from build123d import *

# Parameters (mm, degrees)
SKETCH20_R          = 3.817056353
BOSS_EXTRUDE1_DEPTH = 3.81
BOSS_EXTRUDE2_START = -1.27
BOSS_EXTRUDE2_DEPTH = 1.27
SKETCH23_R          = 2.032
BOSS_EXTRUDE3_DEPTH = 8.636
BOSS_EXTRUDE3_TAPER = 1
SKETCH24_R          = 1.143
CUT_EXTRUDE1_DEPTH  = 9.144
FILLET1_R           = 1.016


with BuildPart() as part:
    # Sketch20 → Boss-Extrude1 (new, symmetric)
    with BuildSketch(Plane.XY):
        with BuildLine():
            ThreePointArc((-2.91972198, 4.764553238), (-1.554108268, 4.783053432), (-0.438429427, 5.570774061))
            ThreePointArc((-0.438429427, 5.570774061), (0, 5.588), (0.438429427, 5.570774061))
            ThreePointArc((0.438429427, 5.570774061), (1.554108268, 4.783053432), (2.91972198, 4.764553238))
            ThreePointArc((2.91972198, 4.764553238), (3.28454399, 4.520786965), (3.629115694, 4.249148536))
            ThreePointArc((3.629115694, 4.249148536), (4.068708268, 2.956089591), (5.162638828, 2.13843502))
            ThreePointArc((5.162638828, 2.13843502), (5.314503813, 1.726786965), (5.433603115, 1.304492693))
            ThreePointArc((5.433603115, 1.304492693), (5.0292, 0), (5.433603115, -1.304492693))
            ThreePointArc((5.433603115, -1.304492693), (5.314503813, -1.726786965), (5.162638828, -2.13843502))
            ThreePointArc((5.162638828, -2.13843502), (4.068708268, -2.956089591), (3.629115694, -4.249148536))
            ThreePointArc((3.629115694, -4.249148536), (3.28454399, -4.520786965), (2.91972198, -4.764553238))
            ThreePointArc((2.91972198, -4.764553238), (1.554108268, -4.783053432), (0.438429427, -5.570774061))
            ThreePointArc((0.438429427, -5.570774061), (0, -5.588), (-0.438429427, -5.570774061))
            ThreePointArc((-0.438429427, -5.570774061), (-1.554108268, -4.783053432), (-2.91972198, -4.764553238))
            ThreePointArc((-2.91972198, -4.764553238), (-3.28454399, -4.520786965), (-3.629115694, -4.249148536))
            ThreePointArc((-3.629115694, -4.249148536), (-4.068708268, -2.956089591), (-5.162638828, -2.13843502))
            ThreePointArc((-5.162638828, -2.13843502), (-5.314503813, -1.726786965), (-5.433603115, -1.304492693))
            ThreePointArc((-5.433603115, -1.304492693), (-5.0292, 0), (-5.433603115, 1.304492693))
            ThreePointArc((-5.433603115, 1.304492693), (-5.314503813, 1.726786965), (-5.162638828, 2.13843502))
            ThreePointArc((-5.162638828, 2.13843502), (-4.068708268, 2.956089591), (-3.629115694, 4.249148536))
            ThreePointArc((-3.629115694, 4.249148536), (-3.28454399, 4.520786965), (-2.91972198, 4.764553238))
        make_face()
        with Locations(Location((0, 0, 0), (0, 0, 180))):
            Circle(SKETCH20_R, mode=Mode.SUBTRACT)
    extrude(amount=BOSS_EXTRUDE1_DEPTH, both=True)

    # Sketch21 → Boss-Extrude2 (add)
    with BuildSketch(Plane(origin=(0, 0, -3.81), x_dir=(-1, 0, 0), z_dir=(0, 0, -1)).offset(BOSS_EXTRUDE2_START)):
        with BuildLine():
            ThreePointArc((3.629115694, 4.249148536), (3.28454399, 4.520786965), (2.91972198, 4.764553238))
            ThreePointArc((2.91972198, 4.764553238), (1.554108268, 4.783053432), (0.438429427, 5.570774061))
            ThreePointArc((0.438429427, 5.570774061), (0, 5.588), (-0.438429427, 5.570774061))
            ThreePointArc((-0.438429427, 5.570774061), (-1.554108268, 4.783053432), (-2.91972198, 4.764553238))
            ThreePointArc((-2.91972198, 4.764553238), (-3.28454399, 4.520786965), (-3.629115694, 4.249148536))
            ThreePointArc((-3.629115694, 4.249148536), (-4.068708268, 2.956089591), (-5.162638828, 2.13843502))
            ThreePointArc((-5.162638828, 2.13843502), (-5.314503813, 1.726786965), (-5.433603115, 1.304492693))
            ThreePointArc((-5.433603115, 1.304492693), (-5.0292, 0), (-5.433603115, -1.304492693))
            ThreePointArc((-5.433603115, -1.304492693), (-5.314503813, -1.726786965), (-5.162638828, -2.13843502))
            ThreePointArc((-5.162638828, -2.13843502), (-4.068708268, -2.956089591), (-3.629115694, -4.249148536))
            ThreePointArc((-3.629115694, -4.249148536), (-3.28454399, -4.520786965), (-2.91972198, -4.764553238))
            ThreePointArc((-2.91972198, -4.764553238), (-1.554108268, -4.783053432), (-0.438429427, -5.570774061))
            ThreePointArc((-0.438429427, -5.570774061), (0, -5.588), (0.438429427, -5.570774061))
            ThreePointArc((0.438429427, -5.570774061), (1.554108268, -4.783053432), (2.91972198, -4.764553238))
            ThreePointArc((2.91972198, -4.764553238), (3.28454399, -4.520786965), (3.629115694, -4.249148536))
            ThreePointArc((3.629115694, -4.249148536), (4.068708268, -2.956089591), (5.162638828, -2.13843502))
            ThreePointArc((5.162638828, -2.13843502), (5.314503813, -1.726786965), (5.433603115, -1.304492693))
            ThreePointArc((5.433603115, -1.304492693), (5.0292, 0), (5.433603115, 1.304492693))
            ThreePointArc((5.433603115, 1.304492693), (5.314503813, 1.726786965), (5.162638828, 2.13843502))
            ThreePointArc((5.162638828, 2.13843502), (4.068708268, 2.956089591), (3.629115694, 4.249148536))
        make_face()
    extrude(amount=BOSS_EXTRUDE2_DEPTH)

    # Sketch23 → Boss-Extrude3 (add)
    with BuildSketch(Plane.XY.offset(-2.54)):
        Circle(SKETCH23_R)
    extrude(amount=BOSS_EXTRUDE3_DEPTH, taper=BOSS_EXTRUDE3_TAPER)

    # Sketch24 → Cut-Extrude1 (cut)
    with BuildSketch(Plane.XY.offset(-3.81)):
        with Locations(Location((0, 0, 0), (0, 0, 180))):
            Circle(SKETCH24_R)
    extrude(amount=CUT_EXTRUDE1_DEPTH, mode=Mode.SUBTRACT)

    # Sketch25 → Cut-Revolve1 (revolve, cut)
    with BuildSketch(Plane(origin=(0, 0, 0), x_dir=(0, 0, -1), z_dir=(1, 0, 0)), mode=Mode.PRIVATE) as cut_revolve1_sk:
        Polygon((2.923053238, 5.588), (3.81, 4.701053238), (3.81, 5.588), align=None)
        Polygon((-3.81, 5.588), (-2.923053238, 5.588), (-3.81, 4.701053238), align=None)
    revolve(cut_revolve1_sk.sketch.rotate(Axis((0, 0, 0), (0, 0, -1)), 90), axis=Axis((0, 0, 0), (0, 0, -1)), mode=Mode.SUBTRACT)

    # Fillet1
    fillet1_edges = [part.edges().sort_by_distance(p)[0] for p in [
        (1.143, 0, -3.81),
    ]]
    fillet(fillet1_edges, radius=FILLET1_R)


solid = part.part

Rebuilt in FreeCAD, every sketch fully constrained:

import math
import FreeCAD as App
import Part
import Sketcher
from FreeCAD import Vector
Q = App.Units.Quantity


def edges_at(feature, points):
    """Names of the edges that pass closest to the given points."""
    edges = feature.Shape.Edges
    near = lambda p: min(range(len(edges)), key=lambda i: edges[i].distToShape(Part.Vertex(*p))[0])
    return sorted({f"Edge{near(p) + 1}" for p in points})

doc = App.newDocument("Part")
body = doc.addObject("PartDesign::Body", "Body")

sketch1 = body.newObject("Sketcher::SketchObject", "Sketch")
sketch1.AttachmentSupport = (doc.getObject("XY_Plane"), [""])
sketch1.MapMode = "FlatFace"
sketch1.addGeometry([
    Part.ArcOfCircle(Part.Circle(Vector(-2.266753, 6.97635, 0), Vector(0, 0, 1), 2.306168), math.radians(-106.447704), math.radians(-37.552296)),
    Part.ArcOfCircle(Part.Circle(Vector(0, 0, 0), Vector(0, 0, 1), 5.588), math.radians(121.5), math.radians(130.5)),
    Part.ArcOfCircle(Part.Circle(Vector(-5.934437, 4.311621, 0), Vector(0, 0, 1), 2.306168), math.radians(-70.447704), math.radians(-1.552296)),
    Part.ArcOfCircle(Part.Circle(Vector(0, 0, 0), Vector(0, 0, 1), 5.588), math.radians(157.5), math.radians(166.5)),
    Part.ArcOfCircle(Part.Circle(Vector(-7.335368, 0, 0), Vector(0, 0, 1), 2.306168), math.radians(-34.447704), math.radians(34.447704)),
    Part.ArcOfCircle(Part.Circle(Vector(0, 0, 0), Vector(0, 0, 1), 5.588), math.radians(-166.5), math.radians(-157.5)),
    Part.ArcOfCircle(Part.Circle(Vector(-5.934437, -4.311621, 0), Vector(0, 0, 1), 2.306168), math.radians(1.552296), math.radians(70.447704)),
    Part.ArcOfCircle(Part.Circle(Vector(0, 0, 0), Vector(0, 0, 1), 5.588), math.radians(-130.5), math.radians(-121.5)),
    Part.ArcOfCircle(Part.Circle(Vector(-2.266753, -6.97635, 0), Vector(0, 0, 1), 2.306168), math.radians(37.552296), math.radians(106.447704)),
    Part.ArcOfCircle(Part.Circle(Vector(0, 0, 0), Vector(0, 0, 1), 5.588), math.radians(-94.5), math.radians(-85.5)),
    Part.ArcOfCircle(Part.Circle(Vector(2.266753, -6.97635, 0), Vector(0, 0, 1), 2.306168), math.radians(73.552296), math.radians(142.447704)),
    Part.ArcOfCircle(Part.Circle(Vector(0, 0, 0), Vector(0, 0, 1), 5.588), math.radians(-58.5), math.radians(-49.5)),
    Part.ArcOfCircle(Part.Circle(Vector(5.934437, -4.311621, 0), Vector(0, 0, 1), 2.306168), math.radians(109.552296), math.radians(178.447704)),
    Part.ArcOfCircle(Part.Circle(Vector(0, 0, 0), Vector(0, 0, 1), 5.588), math.radians(-22.5), math.radians(-13.5)),
    Part.ArcOfCircle(Part.Circle(Vector(7.335368, 0, 0), Vector(0, 0, 1), 2.306168), math.radians(145.552296), math.radians(214.447704)),
    Part.ArcOfCircle(Part.Circle(Vector(0, 0, 0), Vector(0, 0, 1), 5.588), math.radians(13.5), math.radians(22.5)),
    Part.ArcOfCircle(Part.Circle(Vector(5.934437, 4.311621, 0), Vector(0, 0, 1), 2.306168), math.radians(-178.447704), math.radians(-109.552296)),
    Part.ArcOfCircle(Part.Circle(Vector(0, 0, 0), Vector(0, 0, 1), 5.588), math.radians(49.5), math.radians(58.5)),
    Part.ArcOfCircle(Part.Circle(Vector(2.266753, 6.97635, 0), Vector(0, 0, 1), 2.306168), math.radians(-142.447704), math.radians(-73.552296)),
    Part.ArcOfCircle(Part.Circle(Vector(0, 0, 0), Vector(0, 0, 1), 5.588), math.radians(85.5), math.radians(94.5)),
    Part.Circle(Vector(0, 0, 0), Vector(0, 0, 1), 3.817056),
], False)
sketch1.addConstraint([
    Sketcher.Constraint("Coincident", 0, 1, 1, 1),
    Sketcher.Constraint("Coincident", 1, 2, 2, 2),
    Sketcher.Constraint("Coincident", 2, 1, 3, 1),
    Sketcher.Constraint("Coincident", 3, 2, 4, 2),
    Sketcher.Constraint("Coincident", 4, 1, 5, 1),
    Sketcher.Constraint("Coincident", 5, 2, 6, 2),
    Sketcher.Constraint("Coincident", 6, 1, 7, 1),
    Sketcher.Constraint("Coincident", 7, 2, 8, 2),
    Sketcher.Constraint("Coincident", 8, 1, 9, 1),
    Sketcher.Constraint("Coincident", 9, 2, 10, 2),
    Sketcher.Constraint("Coincident", 10, 1, 11, 1),
    Sketcher.Constraint("Coincident", 11, 2, 12, 2),
    Sketcher.Constraint("Coincident", 12, 1, 13, 1),
    Sketcher.Constraint("Coincident", 13, 2, 14, 2),
    Sketcher.Constraint("Coincident", 14, 1, 15, 1),
    Sketcher.Constraint("Coincident", 15, 2, 16, 2),
    Sketcher.Constraint("Coincident", 16, 1, 17, 1),
    Sketcher.Constraint("Coincident", 17, 2, 18, 2),
    Sketcher.Constraint("Coincident", 18, 1, 19, 1),
    Sketcher.Constraint("Coincident", 19, 2, 0, 2),
    Sketcher.Constraint("Coincident", 1, 3, -1, 1),
    Sketcher.Constraint("Coincident", 3, 3, -1, 1),
    Sketcher.Constraint("Coincident", 5, 3, -1, 1),
    Sketcher.Constraint("Coincident", 7, 3, -1, 1),
    Sketcher.Constraint("Coincident", 9, 3, -1, 1),
    Sketcher.Constraint("Coincident", 11, 3, -1, 1),
    Sketcher.Constraint("Coincident", 13, 3, -1, 1),
    Sketcher.Constraint("Coincident", 15, 3, -1, 1),
    Sketcher.Constraint("Coincident", 17, 3, -1, 1),
    Sketcher.Constraint("Coincident", 19, 3, -1, 1),
    Sketcher.Constraint("Coincident", 20, 3, -1, 1),
    Sketcher.Constraint("Equal", 0, 2),
    Sketcher.Constraint("Equal", 1, 3),
    Sketcher.Constraint("Equal", 2, 4),
    Sketcher.Constraint("Equal", 3, 5),
    Sketcher.Constraint("Equal", 4, 6),
    Sketcher.Constraint("Equal", 5, 7),
    Sketcher.Constraint("Equal", 6, 8),
    Sketcher.Constraint("Equal", 7, 9),
    Sketcher.Constraint("Equal", 8, 10),
    Sketcher.Constraint("Equal", 9, 11),
    Sketcher.Constraint("Equal", 10, 12),
    Sketcher.Constraint("Equal", 11, 13),
    Sketcher.Constraint("Equal", 12, 14),
    Sketcher.Constraint("Equal", 13, 15),
    Sketcher.Constraint("Equal", 14, 16),
    Sketcher.Constraint("Equal", 15, 17),
    Sketcher.Constraint("Equal", 16, 18),
    Sketcher.Constraint("Equal", 17, 19),
    Sketcher.Constraint("Symmetric", 0, 3, 10, 3, -1, 1),
    Sketcher.Constraint("Symmetric", 2, 3, 12, 3, -1, 1),
    Sketcher.Constraint("Symmetric", 4, 3, 14, 3, -1, 1),
    Sketcher.Constraint("Symmetric", 6, 3, 16, 3, -1, 1),
    Sketcher.Constraint("Symmetric", 8, 3, 18, 3, -1, 1),
    Sketcher.Constraint("Symmetric", 8, 3, 10, 3, -2),
    Sketcher.Constraint("Symmetric", 6, 3, 12, 3, -2),
    Sketcher.Constraint("PointOnObject", 4, 3, -1),
    Sketcher.Constraint("Radius", 1, Q("0.22 in")),
    Sketcher.Constraint("Radius", 0, Q("2.306168 mm")),
    Sketcher.Constraint("Diameter", 20, Q("7.634113 mm")),
    Sketcher.Constraint("DistanceY", 1, 2, 0, 3, Q("2.727201 mm")),
    Sketcher.Constraint("DistanceX", 2, 3, 2, 1, Q("0.771799 mm")),
    Sketcher.Constraint("DistanceY", -1, 1, 0, 3, Q("6.97635 mm")),
    Sketcher.Constraint("DistanceX", 4, 3, -1, 1, Q("7.335368 mm")),
    Sketcher.Constraint("DistanceX", 0, 1, -1, 1, Q("2.919722 mm")),
])
pad1 = body.newObject("PartDesign::Pad", "Pad")
pad1.Profile = sketch1
pad1.Length = Q("0.3 in")
pad1.Midplane = True

sketch2 = body.newObject("Sketcher::SketchObject", "Sketch001")
sketch2.AttachmentSupport = (doc.getObject("XY_Plane"), [""])
sketch2.MapMode = "FlatFace"
sketch2.AttachmentOffset = App.Placement(Vector(0, 0, -0.1 * 25.4), App.Rotation())
sketch2.addGeometry([
    Part.ArcOfCircle(Part.Circle(Vector(0, 0, 0), Vector(0, 0, 1), 5.588), math.radians(121.5), math.radians(130.5)),
    Part.ArcOfCircle(Part.Circle(Vector(-2.266753, 6.97635, 0), Vector(0, 0, 1), 2.306168), math.radians(-106.447704), math.radians(-37.552296)),
    Part.ArcOfCircle(Part.Circle(Vector(0, 0, 0), Vector(0, 0, 1), 5.588), math.radians(85.5), math.radians(94.5)),
    Part.ArcOfCircle(Part.Circle(Vector(2.266753, 6.97635, 0), Vector(0, 0, 1), 2.306168), math.radians(-142.447704), math.radians(-73.552296)),
    Part.ArcOfCircle(Part.Circle(Vector(0, 0, 0), Vector(0, 0, 1), 5.588), math.radians(49.5), math.radians(58.5)),
    Part.ArcOfCircle(Part.Circle(Vector(5.934437, 4.311621, 0), Vector(0, 0, 1), 2.306168), math.radians(-178.447704), math.radians(-109.552296)),
    Part.ArcOfCircle(Part.Circle(Vector(0, 0, 0), Vector(0, 0, 1), 5.588), math.radians(13.5), math.radians(22.5)),
    Part.ArcOfCircle(Part.Circle(Vector(7.335368, 0, 0), Vector(0, 0, 1), 2.306168), math.radians(145.552296), math.radians(214.447704)),
    Part.ArcOfCircle(Part.Circle(Vector(0, 0, 0), Vector(0, 0, 1), 5.588), math.radians(-22.5), math.radians(-13.5)),
    Part.ArcOfCircle(Part.Circle(Vector(5.934437, -4.311621, 0), Vector(0, 0, 1), 2.306168), math.radians(109.552296), math.radians(178.447704)),
    Part.ArcOfCircle(Part.Circle(Vector(0, 0, 0), Vector(0, 0, 1), 5.588), math.radians(-58.5), math.radians(-49.5)),
    Part.ArcOfCircle(Part.Circle(Vector(2.266753, -6.97635, 0), Vector(0, 0, 1), 2.306168), math.radians(73.552296), math.radians(142.447704)),
    Part.ArcOfCircle(Part.Circle(Vector(0, 0, 0), Vector(0, 0, 1), 5.588), math.radians(-94.5), math.radians(-85.5)),
    Part.ArcOfCircle(Part.Circle(Vector(-2.266753, -6.97635, 0), Vector(0, 0, 1), 2.306168), math.radians(37.552296), math.radians(106.447704)),
    Part.ArcOfCircle(Part.Circle(Vector(0, 0, 0), Vector(0, 0, 1), 5.588), math.radians(-130.5), math.radians(-121.5)),
    Part.ArcOfCircle(Part.Circle(Vector(-5.934437, -4.311621, 0), Vector(0, 0, 1), 2.306168), math.radians(1.552296), math.radians(70.447704)),
    Part.ArcOfCircle(Part.Circle(Vector(0, 0, 0), Vector(0, 0, 1), 5.588), math.radians(-166.5), math.radians(-157.5)),
    Part.ArcOfCircle(Part.Circle(Vector(-7.335368, 0, 0), Vector(0, 0, 1), 2.306168), math.radians(-34.447704), math.radians(34.447704)),
    Part.ArcOfCircle(Part.Circle(Vector(0, 0, 0), Vector(0, 0, 1), 5.588), math.radians(157.5), math.radians(166.5)),
    Part.ArcOfCircle(Part.Circle(Vector(-5.934437, 4.311621, 0), Vector(0, 0, 1), 2.306168), math.radians(-70.447704), math.radians(-1.552296)),
], False)
sketch2.addConstraint([
    Sketcher.Constraint("Coincident", 0, 1, 1, 1),
    Sketcher.Constraint("Coincident", 1, 2, 2, 2),
    Sketcher.Constraint("Coincident", 2, 1, 3, 1),
    Sketcher.Constraint("Coincident", 3, 2, 4, 2),
    Sketcher.Constraint("Coincident", 4, 1, 5, 1),
    Sketcher.Constraint("Coincident", 5, 2, 6, 2),
    Sketcher.Constraint("Coincident", 6, 1, 7, 1),
    Sketcher.Constraint("Coincident", 7, 2, 8, 2),
    Sketcher.Constraint("Coincident", 8, 1, 9, 1),
    Sketcher.Constraint("Coincident", 9, 2, 10, 2),
    Sketcher.Constraint("Coincident", 10, 1, 11, 1),
    Sketcher.Constraint("Coincident", 11, 2, 12, 2),
    Sketcher.Constraint("Coincident", 12, 1, 13, 1),
    Sketcher.Constraint("Coincident", 13, 2, 14, 2),
    Sketcher.Constraint("Coincident", 14, 1, 15, 1),
    Sketcher.Constraint("Coincident", 15, 2, 16, 2),
    Sketcher.Constraint("Coincident", 16, 1, 17, 1),
    Sketcher.Constraint("Coincident", 17, 2, 18, 2),
    Sketcher.Constraint("Coincident", 18, 1, 19, 1),
    Sketcher.Constraint("Coincident", 19, 2, 0, 2),
    Sketcher.Constraint("Coincident", 0, 3, -1, 1),
    Sketcher.Constraint("Coincident", 2, 3, -1, 1),
    Sketcher.Constraint("Coincident", 4, 3, -1, 1),
    Sketcher.Constraint("Coincident", 6, 3, -1, 1),
    Sketcher.Constraint("Coincident", 8, 3, -1, 1),
    Sketcher.Constraint("Coincident", 10, 3, -1, 1),
    Sketcher.Constraint("Coincident", 12, 3, -1, 1),
    Sketcher.Constraint("Coincident", 14, 3, -1, 1),
    Sketcher.Constraint("Coincident", 16, 3, -1, 1),
    Sketcher.Constraint("Coincident", 18, 3, -1, 1),
    Sketcher.Constraint("Equal", 0, 2),
    Sketcher.Constraint("Equal", 1, 3),
    Sketcher.Constraint("Equal", 2, 4),
    Sketcher.Constraint("Equal", 3, 5),
    Sketcher.Constraint("Equal", 4, 6),
    Sketcher.Constraint("Equal", 5, 7),
    Sketcher.Constraint("Equal", 6, 8),
    Sketcher.Constraint("Equal", 7, 9),
    Sketcher.Constraint("Equal", 8, 10),
    Sketcher.Constraint("Equal", 9, 11),
    Sketcher.Constraint("Equal", 10, 12),
    Sketcher.Constraint("Equal", 11, 13),
    Sketcher.Constraint("Equal", 12, 14),
    Sketcher.Constraint("Equal", 13, 15),
    Sketcher.Constraint("Equal", 14, 16),
    Sketcher.Constraint("Equal", 15, 17),
    Sketcher.Constraint("Equal", 16, 18),
    Sketcher.Constraint("Equal", 17, 19),
    Sketcher.Constraint("Symmetric", 1, 3, 11, 3, -1, 1),
    Sketcher.Constraint("Symmetric", 3, 3, 13, 3, -1, 1),
    Sketcher.Constraint("Symmetric", 5, 3, 15, 3, -1, 1),
    Sketcher.Constraint("Symmetric", 7, 3, 17, 3, -1, 1),
    Sketcher.Constraint("Symmetric", 9, 3, 19, 3, -1, 1),
    Sketcher.Constraint("Symmetric", 1, 3, 3, 3, -2),
    Sketcher.Constraint("Symmetric", 9, 3, 15, 3, -2),
    Sketcher.Constraint("PointOnObject", 7, 3, -1),
    Sketcher.Constraint("Radius", 0, Q("0.22 in")),
    Sketcher.Constraint("Radius", 1, Q("2.306168 mm")),
    Sketcher.Constraint("DistanceY", 4, 1, 3, 3, Q("2.727201 mm")),
    Sketcher.Constraint("DistanceX", 5, 2, 5, 3, Q("0.771799 mm")),
    Sketcher.Constraint("DistanceY", -1, 1, 1, 3, Q("6.97635 mm")),
    Sketcher.Constraint("DistanceX", -1, 1, 7, 3, Q("7.335368 mm")),
    Sketcher.Constraint("DistanceX", 0, 1, -1, 1, Q("2.919722 mm")),
])
pad2 = body.newObject("PartDesign::Pad", "Pad001")
pad2.Profile = sketch2
pad2.Length = Q("0.05 in")
pad2.Reversed = True

sketch3 = body.newObject("Sketcher::SketchObject", "Sketch002")
sketch3.AttachmentSupport = (doc.getObject("XY_Plane"), [""])
sketch3.MapMode = "FlatFace"
sketch3.AttachmentOffset = App.Placement(Vector(0, 0, -0.1 * 25.4), App.Rotation())
sketch3.addGeometry(Part.Circle(Vector(0, 0, 0), Vector(0, 0, 1), 2.032), False)
sketch3.addConstraint([
    Sketcher.Constraint("Coincident", 0, 3, -1, 1),
    Sketcher.Constraint("Diameter", 0, Q("0.16 in")),
])
pad3 = body.newObject("PartDesign::Pad", "Pad002")
pad3.Profile = sketch3
pad3.Length = Q("0.34 in")
pad3.TaperAngle = -1

sketch4 = body.newObject("Sketcher::SketchObject", "Sketch003")
sketch4.AttachmentSupport = (doc.getObject("XY_Plane"), [""])
sketch4.MapMode = "FlatFace"
sketch4.AttachmentOffset = App.Placement(Vector(0, 0, -0.15 * 25.4), App.Rotation())
sketch4.addGeometry(Part.Circle(Vector(0, 0, 0), Vector(0, 0, 1), 1.143), False)
sketch4.addConstraint([
    Sketcher.Constraint("Coincident", 0, 3, -1, 1),
    Sketcher.Constraint("Diameter", 0, Q("0.09 in")),
])
pocket1 = body.newObject("PartDesign::Pocket", "Pocket")
pocket1.Profile = sketch4
pocket1.Length = Q("0.36 in")
pocket1.Reversed = True

sketch5 = body.newObject("Sketcher::SketchObject", "Sketch004")
sketch5.AttachmentSupport = (doc.getObject("YZ_Plane"), [""])
sketch5.MapMode = "FlatFace"
sketch5.addGeometry([
    Part.LineSegment(Vector(5.588, -2.923053, 0), Vector(4.701053, -3.81, 0)),
    Part.LineSegment(Vector(4.701053, -3.81, 0), Vector(5.588, -3.81, 0)),
    Part.LineSegment(Vector(5.588, -3.81, 0), Vector(5.588, -2.923053, 0)),
    Part.LineSegment(Vector(5.588, 2.923053, 0), Vector(5.588, 3.81, 0)),
    Part.LineSegment(Vector(5.588, 3.81, 0), Vector(4.701053, 3.81, 0)),
    Part.LineSegment(Vector(4.701053, 3.81, 0), Vector(5.588, 2.923053, 0)),
], False)
sketch5.addConstraint([
    Sketcher.Constraint("Coincident", 0, 2, 1, 1),
    Sketcher.Constraint("Coincident", 1, 2, 2, 1),
    Sketcher.Constraint("Coincident", 2, 2, 0, 1),
    Sketcher.Constraint("Coincident", 3, 2, 4, 1),
    Sketcher.Constraint("Coincident", 4, 2, 5, 1),
    Sketcher.Constraint("Coincident", 5, 2, 3, 1),
    Sketcher.Constraint("Horizontal", 1),
    Sketcher.Constraint("Vertical", 2),
    Sketcher.Constraint("Vertical", 3),
    Sketcher.Constraint("Horizontal", 4),
    Sketcher.Constraint("Symmetric", 1, 2, 3, 2, -1),
    Sketcher.Constraint("Perpendicular", 0, 5),
    Sketcher.Constraint("Vertical", 0, 2, 4, 2),
    Sketcher.Constraint("Equal", 4, 2),
    Sketcher.Constraint("DistanceY", 1, 2, 3, 2, Q("0.3 in")),
    Sketcher.Constraint("DistanceX", -1, 1, 1, 2, Q("0.22 in")),
    Sketcher.Constraint("DistanceX", 1, 1, 1, 2, Q("0.886947 mm")),
])
groove = body.newObject("PartDesign::Groove", "Groove")
groove.Profile = sketch5
groove.ReferenceAxis = (sketch5, ["V_Axis"])
groove.Angle = 360
doc.recompute()

fillet = body.newObject("PartDesign::Fillet", "Fillet")
fillet.Base = (groove, edges_at(groove, [(1.143, 0, -3.81)]))
fillet.Radius = Q("0.04 in")

doc.recompute()
